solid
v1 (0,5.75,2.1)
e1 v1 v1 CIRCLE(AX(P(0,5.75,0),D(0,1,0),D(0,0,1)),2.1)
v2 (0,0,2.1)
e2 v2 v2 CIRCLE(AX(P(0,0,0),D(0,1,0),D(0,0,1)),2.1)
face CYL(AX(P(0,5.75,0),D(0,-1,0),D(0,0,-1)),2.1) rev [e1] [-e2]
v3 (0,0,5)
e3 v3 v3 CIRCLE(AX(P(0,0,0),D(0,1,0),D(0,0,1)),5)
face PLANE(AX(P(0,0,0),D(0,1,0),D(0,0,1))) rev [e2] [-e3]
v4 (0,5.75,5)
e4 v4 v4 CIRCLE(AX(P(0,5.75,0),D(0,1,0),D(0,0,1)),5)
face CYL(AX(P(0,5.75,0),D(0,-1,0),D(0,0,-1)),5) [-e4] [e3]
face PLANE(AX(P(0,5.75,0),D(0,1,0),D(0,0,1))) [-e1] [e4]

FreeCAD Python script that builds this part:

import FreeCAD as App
import Part
import Sketcher

V = App.Vector
Q = App.Units.Quantity

doc = App.newDocument("Part")
body = doc.addObject("PartDesign::Body", "Body")

# Sketch on XZ plane
sketch1 = body.newObject("Sketcher::SketchObject", "Sketch")
sketch1.AttachmentSupport = (doc.getObject("XZ_Plane"), [""])
sketch1.MapMode = "FlatFace"
sketch1.addGeometry([
    Part.Circle(V(0, 0, 0), V(0, 0, 1), 5),
    Part.Circle(V(0, 0, 0), V(0, 0, 1), 2.1),
], False)
sketch1.addConstraint([
    Sketcher.Constraint("Coincident", 0, 3, -1, 1),
    Sketcher.Constraint("Coincident", 1, 3, -1, 1),
    Sketcher.Constraint("Diameter", 0, Q("10 mm")),
    Sketcher.Constraint("Diameter", 1, Q("4.2 mm")),
])
pad1 = body.newObject("PartDesign::Pad", "Pad")
pad1.Profile = sketch1
pad1.Length = 5.75
pad1.Reversed = True

doc.recompute()
